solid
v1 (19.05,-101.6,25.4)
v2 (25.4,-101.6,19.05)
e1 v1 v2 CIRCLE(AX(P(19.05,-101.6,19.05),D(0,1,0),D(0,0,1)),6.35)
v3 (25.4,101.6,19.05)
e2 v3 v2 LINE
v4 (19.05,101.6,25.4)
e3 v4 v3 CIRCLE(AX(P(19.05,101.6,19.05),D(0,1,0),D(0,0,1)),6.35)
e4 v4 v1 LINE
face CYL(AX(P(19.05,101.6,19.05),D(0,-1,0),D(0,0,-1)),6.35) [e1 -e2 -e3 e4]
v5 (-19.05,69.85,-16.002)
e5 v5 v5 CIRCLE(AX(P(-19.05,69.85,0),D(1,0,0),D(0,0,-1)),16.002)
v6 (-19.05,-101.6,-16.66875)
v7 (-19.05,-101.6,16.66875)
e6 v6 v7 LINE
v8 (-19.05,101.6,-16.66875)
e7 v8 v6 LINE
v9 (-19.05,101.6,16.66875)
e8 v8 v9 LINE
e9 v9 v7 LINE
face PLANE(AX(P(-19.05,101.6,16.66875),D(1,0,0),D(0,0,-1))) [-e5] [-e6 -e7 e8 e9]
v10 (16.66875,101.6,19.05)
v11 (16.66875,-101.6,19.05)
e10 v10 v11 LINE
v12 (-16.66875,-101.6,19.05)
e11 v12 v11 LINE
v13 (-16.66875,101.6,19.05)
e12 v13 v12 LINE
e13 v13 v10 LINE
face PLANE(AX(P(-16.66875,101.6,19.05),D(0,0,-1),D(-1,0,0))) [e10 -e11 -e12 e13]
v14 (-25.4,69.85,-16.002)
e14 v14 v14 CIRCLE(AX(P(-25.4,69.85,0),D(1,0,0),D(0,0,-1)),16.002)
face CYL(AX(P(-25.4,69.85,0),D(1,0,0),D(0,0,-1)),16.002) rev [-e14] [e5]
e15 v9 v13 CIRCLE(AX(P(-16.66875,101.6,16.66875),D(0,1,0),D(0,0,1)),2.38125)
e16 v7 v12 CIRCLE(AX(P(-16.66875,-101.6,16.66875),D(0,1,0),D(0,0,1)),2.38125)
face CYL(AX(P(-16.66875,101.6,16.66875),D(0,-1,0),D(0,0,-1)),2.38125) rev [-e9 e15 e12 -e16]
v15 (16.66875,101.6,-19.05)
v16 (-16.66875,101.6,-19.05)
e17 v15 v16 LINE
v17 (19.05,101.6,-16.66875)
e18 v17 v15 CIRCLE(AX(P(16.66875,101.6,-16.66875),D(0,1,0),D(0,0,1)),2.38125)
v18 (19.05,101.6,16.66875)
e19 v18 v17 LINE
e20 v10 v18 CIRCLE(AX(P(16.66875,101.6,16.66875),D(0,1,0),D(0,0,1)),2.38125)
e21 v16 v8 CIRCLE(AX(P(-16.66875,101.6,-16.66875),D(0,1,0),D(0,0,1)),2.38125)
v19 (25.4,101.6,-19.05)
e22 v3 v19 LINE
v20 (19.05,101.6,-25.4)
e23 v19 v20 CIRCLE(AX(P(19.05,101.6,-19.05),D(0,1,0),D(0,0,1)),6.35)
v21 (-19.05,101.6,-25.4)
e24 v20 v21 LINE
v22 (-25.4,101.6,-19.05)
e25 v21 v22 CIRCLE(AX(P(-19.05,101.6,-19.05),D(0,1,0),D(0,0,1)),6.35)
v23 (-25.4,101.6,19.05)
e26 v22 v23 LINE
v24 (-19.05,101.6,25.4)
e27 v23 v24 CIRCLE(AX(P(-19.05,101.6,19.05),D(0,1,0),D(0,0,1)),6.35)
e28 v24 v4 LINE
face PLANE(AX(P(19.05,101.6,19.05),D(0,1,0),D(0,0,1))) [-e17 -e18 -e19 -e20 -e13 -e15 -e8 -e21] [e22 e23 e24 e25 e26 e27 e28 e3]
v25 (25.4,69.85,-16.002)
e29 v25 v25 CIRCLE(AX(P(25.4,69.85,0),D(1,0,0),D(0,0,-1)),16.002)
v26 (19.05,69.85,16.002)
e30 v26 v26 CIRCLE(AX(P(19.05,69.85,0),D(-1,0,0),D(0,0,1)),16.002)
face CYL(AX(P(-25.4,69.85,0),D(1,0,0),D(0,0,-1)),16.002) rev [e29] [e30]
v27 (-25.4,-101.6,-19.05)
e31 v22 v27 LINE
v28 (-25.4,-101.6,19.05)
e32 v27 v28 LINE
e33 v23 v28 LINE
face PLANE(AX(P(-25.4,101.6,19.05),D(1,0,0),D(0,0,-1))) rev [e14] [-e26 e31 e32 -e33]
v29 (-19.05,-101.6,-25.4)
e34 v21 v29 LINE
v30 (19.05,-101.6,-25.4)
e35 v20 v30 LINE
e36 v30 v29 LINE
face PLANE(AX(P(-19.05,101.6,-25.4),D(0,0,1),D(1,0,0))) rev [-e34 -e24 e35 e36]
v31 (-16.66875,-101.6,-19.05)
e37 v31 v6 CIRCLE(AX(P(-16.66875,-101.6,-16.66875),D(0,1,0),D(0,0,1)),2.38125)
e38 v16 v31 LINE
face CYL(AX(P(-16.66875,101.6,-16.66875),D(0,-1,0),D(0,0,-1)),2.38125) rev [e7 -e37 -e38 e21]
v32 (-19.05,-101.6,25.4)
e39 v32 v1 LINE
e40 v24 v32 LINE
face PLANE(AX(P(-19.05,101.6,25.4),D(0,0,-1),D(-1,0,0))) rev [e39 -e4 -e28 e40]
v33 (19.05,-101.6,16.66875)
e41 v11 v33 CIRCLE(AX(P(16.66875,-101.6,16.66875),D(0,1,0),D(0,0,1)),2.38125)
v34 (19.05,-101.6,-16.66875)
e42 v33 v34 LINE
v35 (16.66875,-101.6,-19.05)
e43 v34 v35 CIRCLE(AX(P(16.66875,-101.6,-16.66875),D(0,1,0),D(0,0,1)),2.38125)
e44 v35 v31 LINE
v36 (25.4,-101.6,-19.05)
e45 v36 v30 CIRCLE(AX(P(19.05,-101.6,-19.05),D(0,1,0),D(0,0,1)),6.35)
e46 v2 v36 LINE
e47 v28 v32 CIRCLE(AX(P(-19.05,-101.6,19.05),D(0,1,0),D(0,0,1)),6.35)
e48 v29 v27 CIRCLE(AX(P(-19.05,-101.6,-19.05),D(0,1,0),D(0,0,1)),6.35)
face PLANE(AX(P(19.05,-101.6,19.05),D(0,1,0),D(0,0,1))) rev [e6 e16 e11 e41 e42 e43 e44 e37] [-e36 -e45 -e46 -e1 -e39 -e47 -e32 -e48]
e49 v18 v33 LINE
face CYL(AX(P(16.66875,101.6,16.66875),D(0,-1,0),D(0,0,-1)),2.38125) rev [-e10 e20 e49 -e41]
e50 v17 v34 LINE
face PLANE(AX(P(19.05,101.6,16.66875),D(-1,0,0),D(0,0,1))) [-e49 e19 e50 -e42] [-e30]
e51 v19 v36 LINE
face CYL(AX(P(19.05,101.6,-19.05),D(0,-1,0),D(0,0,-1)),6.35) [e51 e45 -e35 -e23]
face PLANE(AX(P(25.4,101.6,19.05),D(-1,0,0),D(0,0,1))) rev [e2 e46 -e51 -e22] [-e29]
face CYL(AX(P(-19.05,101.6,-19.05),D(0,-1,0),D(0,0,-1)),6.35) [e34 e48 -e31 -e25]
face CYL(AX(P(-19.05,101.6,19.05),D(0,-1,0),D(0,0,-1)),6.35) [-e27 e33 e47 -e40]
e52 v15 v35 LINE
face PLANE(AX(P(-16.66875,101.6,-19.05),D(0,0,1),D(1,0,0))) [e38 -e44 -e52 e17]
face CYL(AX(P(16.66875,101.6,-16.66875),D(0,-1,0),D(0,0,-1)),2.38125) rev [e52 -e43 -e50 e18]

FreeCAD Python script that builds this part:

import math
import FreeCAD as App
import Part
import Sketcher
from FreeCAD import Vector
Q = App.Units.Quantity

doc = App.newDocument("Part")
params = doc.addObject("Spreadsheet::Sheet", "Params")
for row, (alias, value) in enumerate([
    ("sketch1_radius", "0.25 in"),
    ("sketch1_width", "1.5 in"),
    ("sketch1_radius2", "0.09375 in"),
    ("pad1_length", "8 in"),
    ("sketch2_diameter", "1.26 in"),
], start=1):
    params.set(f"A{row}", alias)
    params.set(f"B{row}", "=" + value)
    params.setAlias(f"B{row}", alias)

body = doc.addObject("PartDesign::Body", "Body")

# Sketch on XZ plane
sketch1 = doc.addObject("Sketcher::SketchObject", "Sketch")
body.addObject(sketch1)
sketch1.AttachmentSupport = (doc.XZ_Plane, [""])
sketch1.MapMode = "FlatFace"
sketch1.addGeometry([
    Part.LineSegment(Vector(-25.4, -19.1, 0), Vector(-25.4, 19.1, 0)),  # 0
    Part.ArcOfCircle(Part.Circle(Vector(-19.1, 19.1, 0), Vector(0, 0, 1), 6.3), math.radians(90), math.radians(180)),  # 1
    Part.LineSegment(Vector(-19.1, 25.4, 0), Vector(19.1, 25.4, 0)),  # 2
    Part.ArcOfCircle(Part.Circle(Vector(19.1, 19.1, 0), Vector(0, 0, 1), 6.3), math.radians(0), math.radians(90)),  # 3
    Part.LineSegment(Vector(25.4, 19.1, 0), Vector(25.4, -19.1, 0)),  # 4
    Part.ArcOfCircle(Part.Circle(Vector(19.1, -19.1, 0), Vector(0, 0, 1), 6.3), math.radians(-90), math.radians(0)),  # 5
    Part.LineSegment(Vector(19.1, -25.4, 0), Vector(-19.1, -25.4, 0)),  # 6
    Part.ArcOfCircle(Part.Circle(Vector(-19.1, -19.1, 0), Vector(0, 0, 1), 6.3), math.radians(180), math.radians(270)),  # 7
    Part.LineSegment(Vector(-19.1, 16.7, 0), Vector(-19.1, -16.7, 0)),  # 8
    Part.ArcOfCircle(Part.Circle(Vector(-16.7, -16.7, 0), Vector(0, 0, 1), 2.4), math.radians(180), math.radians(270)),  # 9
    Part.LineSegment(Vector(-16.7, -19.1, 0), Vector(16.7, -19.1, 0)),  # 10
    Part.ArcOfCircle(Part.Circle(Vector(16.7, -16.7, 0), Vector(0, 0, 1), 2.4), math.radians(-90), math.radians(0)),  # 11
    Part.LineSegment(Vector(19.1, -16.7, 0), Vector(19.1, 16.7, 0)),  # 12
    Part.ArcOfCircle(Part.Circle(Vector(16.7, 16.7, 0), Vector(0, 0, 1), 2.4), math.radians(0), math.radians(90)),  # 13
    Part.LineSegment(Vector(16.7, 19.1, 0), Vector(-16.7, 19.1, 0)),  # 14
    Part.ArcOfCircle(Part.Circle(Vector(-16.7, 16.7, 0), Vector(0, 0, 1), 2.4), math.radians(90), math.radians(180)),  # 15
], False)
sketch1.addConstraint([
    Sketcher.Constraint("Tangent", 0, 2, 1, 2),
    Sketcher.Constraint("Tangent", 1, 1, 2, 1),
    Sketcher.Constraint("Tangent", 2, 2, 3, 2),
    Sketcher.Constraint("Tangent", 3, 1, 4, 1),
    Sketcher.Constraint("Tangent", 4, 2, 5, 2),
    Sketcher.Constraint("Tangent", 5, 1, 6, 1),
    Sketcher.Constraint("Tangent", 6, 2, 7, 2),
    Sketcher.Constraint("Tangent", 7, 1, 0, 1),
    Sketcher.Constraint("Tangent", 8, 2, 9, 1),
    Sketcher.Constraint("Tangent", 9, 2, 10, 1),
    Sketcher.Constraint("Tangent", 10, 2, 11, 1),
    Sketcher.Constraint("Tangent", 11, 2, 12, 1),
    Sketcher.Constraint("Tangent", 12, 2, 13, 1),
    Sketcher.Constraint("Tangent", 13, 2, 14, 1),
    Sketcher.Constraint("Tangent", 14, 2, 15, 1),
    Sketcher.Constraint("Tangent", 15, 2, 8, 1),
    Sketcher.Constraint("Vertical", 0),
    Sketcher.Constraint("Horizontal", 2),
    Sketcher.Constraint("Vertical", 4),
    Sketcher.Constraint("Horizontal", 6),
    Sketcher.Constraint("Vertical", 8),
    Sketcher.Constraint("Horizontal", 10),
    Sketcher.Constraint("Vertical", 12),
    Sketcher.Constraint("Horizontal", 14),
    Sketcher.Constraint("Equal", 1, 3),
    Sketcher.Constraint("Equal", 3, 5),
    Sketcher.Constraint("Equal", 5, 7),
    Sketcher.Constraint("Equal", 9, 11),
    Sketcher.Constraint("Equal", 11, 13),
    Sketcher.Constraint("Equal", 13, 15),
    Sketcher.Constraint("Symmetric", 1, 3, 5, 3, -1, 1),
    Sketcher.Constraint("Symmetric", 9, 3, 13, 3, -1, 1),
    Sketcher.Constraint("Horizontal", 7, 1, 9, 2),
    Sketcher.Constraint("Vertical", 6, 2, 8, 2),
    Sketcher.Constraint("Equal", 6, 0),
    Sketcher.Constraint("Radius", 1, Q("0.25 in")),
    Sketcher.Constraint("DistanceX", 2, 1, 2, 2, Q("1.5 in")),
    Sketcher.Constraint("Radius", 9, Q("0.09375 in")),
])
sketch1.setExpression("Constraints[35]", "Params.sketch1_radius")
sketch1.setExpression("Constraints[36]", "Params.sketch1_width")
sketch1.setExpression("Constraints[37]", "Params.sketch1_radius2")
pad1 = doc.addObject("PartDesign::Pad", "Pad")
body.addObject(pad1)
pad1.Profile = sketch1
pad1.setExpression("Length", "Params.pad1_length")
pad1.Midplane = True

# Sketch on YZ plane
sketch2 = doc.addObject("Sketcher::SketchObject", "Sketch001")
body.addObject(sketch2)
sketch2.AttachmentSupport = (doc.YZ_Plane, [""])
sketch2.MapMode = "FlatFace"
sketch2.AttachmentOffset = App.Placement(Vector(0, 0, 1 * 25.4), App.Rotation())
sketch2.addGeometry(Part.Circle(Vector(70, 0, 0), Vector(0, 0, 1), 16), False)
sketch2.addConstraint([
    Sketcher.Constraint("PointOnObject", 0, 3, -1),
    Sketcher.Constraint("Diameter", 0, Q("1.26 in")),
    Sketcher.Constraint("DistanceX", -1, 1, 0, 3, Q("2.75 in")),
])
sketch2.setExpression("Constraints[1]", "Params.sketch2_diameter")
pocket1 = doc.addObject("PartDesign::Pocket", "Pocket")
body.addObject(pocket1)
pocket1.Profile = sketch2
pocket1.Type = "ThroughAll"

doc.recompute()
